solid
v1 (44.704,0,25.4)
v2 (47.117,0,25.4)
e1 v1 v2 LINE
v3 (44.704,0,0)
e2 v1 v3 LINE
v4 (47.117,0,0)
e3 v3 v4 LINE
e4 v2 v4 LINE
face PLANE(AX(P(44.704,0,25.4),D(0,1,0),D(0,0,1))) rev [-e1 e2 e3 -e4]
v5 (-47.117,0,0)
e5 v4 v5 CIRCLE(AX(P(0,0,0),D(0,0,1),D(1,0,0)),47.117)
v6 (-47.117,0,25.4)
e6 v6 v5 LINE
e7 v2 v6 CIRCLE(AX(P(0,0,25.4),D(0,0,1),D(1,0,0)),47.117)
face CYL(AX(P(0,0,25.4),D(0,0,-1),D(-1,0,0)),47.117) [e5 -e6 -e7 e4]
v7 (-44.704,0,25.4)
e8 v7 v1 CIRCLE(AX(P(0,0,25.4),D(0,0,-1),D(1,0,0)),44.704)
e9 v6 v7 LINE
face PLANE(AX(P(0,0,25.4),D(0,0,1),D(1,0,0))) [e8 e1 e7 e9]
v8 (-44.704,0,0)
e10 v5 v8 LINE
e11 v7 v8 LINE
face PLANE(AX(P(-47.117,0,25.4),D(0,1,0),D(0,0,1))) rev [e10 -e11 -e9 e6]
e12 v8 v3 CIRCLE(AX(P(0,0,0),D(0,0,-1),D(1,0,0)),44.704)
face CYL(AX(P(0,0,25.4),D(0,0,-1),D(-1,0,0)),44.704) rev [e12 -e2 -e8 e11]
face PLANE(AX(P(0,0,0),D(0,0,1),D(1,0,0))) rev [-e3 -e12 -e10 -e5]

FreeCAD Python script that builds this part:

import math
import FreeCAD as App
import Part
import Sketcher
from FreeCAD import Vector
Q = App.Units.Quantity

doc = App.newDocument("Part")
body = doc.addObject("PartDesign::Body", "Body")

# Sketch on XY plane
sketch1 = body.newObject("Sketcher::SketchObject", "Sketch")
sketch1.AttachmentSupport = (doc.getObject("XY_Plane"), [""])
sketch1.MapMode = "FlatFace"
sketch1.addGeometry([
    Part.LineSegment(Vector(-47.1, 0, 0), Vector(-44.7, 0, 0)),
    Part.ArcOfCircle(Part.Circle(Vector(0, 0, 0), Vector(0, 0, 1), 44.7), math.radians(0), math.radians(180)),
    Part.LineSegment(Vector(44.7, 0, 0), Vector(47.1, 0, 0)),
    Part.ArcOfCircle(Part.Circle(Vector(0, 0, 0), Vector(0, 0, 1), 47.1), math.radians(0), math.radians(180)),
], False)
sketch1.addConstraint([
    Sketcher.Constraint("Coincident", 0, 2, 1, 2),
    Sketcher.Constraint("Coincident", 1, 1, 2, 1),
    Sketcher.Constraint("Coincident", 2, 2, 3, 1),
    Sketcher.Constraint("Coincident", 3, 2, 0, 1),
    Sketcher.Constraint("Horizontal", 0),
    Sketcher.Constraint("Horizontal", 2),
    Sketcher.Constraint("Coincident", 1, 3, -1, 1),
    Sketcher.Constraint("Coincident", 3, 3, -1, 1),
    Sketcher.Constraint("PointOnObject", 0, 2, -1),
    Sketcher.Constraint("PointOnObject", 1, 1, -1),
    Sketcher.Constraint("Radius", 1, Q("1.76 in")),
    Sketcher.Constraint("Radius", 3, Q("1.855 in")),
])
pad1 = body.newObject("PartDesign::Pad", "Pad")
pad1.Profile = sketch1
pad1.Length = Q("1 in")

doc.recompute()
